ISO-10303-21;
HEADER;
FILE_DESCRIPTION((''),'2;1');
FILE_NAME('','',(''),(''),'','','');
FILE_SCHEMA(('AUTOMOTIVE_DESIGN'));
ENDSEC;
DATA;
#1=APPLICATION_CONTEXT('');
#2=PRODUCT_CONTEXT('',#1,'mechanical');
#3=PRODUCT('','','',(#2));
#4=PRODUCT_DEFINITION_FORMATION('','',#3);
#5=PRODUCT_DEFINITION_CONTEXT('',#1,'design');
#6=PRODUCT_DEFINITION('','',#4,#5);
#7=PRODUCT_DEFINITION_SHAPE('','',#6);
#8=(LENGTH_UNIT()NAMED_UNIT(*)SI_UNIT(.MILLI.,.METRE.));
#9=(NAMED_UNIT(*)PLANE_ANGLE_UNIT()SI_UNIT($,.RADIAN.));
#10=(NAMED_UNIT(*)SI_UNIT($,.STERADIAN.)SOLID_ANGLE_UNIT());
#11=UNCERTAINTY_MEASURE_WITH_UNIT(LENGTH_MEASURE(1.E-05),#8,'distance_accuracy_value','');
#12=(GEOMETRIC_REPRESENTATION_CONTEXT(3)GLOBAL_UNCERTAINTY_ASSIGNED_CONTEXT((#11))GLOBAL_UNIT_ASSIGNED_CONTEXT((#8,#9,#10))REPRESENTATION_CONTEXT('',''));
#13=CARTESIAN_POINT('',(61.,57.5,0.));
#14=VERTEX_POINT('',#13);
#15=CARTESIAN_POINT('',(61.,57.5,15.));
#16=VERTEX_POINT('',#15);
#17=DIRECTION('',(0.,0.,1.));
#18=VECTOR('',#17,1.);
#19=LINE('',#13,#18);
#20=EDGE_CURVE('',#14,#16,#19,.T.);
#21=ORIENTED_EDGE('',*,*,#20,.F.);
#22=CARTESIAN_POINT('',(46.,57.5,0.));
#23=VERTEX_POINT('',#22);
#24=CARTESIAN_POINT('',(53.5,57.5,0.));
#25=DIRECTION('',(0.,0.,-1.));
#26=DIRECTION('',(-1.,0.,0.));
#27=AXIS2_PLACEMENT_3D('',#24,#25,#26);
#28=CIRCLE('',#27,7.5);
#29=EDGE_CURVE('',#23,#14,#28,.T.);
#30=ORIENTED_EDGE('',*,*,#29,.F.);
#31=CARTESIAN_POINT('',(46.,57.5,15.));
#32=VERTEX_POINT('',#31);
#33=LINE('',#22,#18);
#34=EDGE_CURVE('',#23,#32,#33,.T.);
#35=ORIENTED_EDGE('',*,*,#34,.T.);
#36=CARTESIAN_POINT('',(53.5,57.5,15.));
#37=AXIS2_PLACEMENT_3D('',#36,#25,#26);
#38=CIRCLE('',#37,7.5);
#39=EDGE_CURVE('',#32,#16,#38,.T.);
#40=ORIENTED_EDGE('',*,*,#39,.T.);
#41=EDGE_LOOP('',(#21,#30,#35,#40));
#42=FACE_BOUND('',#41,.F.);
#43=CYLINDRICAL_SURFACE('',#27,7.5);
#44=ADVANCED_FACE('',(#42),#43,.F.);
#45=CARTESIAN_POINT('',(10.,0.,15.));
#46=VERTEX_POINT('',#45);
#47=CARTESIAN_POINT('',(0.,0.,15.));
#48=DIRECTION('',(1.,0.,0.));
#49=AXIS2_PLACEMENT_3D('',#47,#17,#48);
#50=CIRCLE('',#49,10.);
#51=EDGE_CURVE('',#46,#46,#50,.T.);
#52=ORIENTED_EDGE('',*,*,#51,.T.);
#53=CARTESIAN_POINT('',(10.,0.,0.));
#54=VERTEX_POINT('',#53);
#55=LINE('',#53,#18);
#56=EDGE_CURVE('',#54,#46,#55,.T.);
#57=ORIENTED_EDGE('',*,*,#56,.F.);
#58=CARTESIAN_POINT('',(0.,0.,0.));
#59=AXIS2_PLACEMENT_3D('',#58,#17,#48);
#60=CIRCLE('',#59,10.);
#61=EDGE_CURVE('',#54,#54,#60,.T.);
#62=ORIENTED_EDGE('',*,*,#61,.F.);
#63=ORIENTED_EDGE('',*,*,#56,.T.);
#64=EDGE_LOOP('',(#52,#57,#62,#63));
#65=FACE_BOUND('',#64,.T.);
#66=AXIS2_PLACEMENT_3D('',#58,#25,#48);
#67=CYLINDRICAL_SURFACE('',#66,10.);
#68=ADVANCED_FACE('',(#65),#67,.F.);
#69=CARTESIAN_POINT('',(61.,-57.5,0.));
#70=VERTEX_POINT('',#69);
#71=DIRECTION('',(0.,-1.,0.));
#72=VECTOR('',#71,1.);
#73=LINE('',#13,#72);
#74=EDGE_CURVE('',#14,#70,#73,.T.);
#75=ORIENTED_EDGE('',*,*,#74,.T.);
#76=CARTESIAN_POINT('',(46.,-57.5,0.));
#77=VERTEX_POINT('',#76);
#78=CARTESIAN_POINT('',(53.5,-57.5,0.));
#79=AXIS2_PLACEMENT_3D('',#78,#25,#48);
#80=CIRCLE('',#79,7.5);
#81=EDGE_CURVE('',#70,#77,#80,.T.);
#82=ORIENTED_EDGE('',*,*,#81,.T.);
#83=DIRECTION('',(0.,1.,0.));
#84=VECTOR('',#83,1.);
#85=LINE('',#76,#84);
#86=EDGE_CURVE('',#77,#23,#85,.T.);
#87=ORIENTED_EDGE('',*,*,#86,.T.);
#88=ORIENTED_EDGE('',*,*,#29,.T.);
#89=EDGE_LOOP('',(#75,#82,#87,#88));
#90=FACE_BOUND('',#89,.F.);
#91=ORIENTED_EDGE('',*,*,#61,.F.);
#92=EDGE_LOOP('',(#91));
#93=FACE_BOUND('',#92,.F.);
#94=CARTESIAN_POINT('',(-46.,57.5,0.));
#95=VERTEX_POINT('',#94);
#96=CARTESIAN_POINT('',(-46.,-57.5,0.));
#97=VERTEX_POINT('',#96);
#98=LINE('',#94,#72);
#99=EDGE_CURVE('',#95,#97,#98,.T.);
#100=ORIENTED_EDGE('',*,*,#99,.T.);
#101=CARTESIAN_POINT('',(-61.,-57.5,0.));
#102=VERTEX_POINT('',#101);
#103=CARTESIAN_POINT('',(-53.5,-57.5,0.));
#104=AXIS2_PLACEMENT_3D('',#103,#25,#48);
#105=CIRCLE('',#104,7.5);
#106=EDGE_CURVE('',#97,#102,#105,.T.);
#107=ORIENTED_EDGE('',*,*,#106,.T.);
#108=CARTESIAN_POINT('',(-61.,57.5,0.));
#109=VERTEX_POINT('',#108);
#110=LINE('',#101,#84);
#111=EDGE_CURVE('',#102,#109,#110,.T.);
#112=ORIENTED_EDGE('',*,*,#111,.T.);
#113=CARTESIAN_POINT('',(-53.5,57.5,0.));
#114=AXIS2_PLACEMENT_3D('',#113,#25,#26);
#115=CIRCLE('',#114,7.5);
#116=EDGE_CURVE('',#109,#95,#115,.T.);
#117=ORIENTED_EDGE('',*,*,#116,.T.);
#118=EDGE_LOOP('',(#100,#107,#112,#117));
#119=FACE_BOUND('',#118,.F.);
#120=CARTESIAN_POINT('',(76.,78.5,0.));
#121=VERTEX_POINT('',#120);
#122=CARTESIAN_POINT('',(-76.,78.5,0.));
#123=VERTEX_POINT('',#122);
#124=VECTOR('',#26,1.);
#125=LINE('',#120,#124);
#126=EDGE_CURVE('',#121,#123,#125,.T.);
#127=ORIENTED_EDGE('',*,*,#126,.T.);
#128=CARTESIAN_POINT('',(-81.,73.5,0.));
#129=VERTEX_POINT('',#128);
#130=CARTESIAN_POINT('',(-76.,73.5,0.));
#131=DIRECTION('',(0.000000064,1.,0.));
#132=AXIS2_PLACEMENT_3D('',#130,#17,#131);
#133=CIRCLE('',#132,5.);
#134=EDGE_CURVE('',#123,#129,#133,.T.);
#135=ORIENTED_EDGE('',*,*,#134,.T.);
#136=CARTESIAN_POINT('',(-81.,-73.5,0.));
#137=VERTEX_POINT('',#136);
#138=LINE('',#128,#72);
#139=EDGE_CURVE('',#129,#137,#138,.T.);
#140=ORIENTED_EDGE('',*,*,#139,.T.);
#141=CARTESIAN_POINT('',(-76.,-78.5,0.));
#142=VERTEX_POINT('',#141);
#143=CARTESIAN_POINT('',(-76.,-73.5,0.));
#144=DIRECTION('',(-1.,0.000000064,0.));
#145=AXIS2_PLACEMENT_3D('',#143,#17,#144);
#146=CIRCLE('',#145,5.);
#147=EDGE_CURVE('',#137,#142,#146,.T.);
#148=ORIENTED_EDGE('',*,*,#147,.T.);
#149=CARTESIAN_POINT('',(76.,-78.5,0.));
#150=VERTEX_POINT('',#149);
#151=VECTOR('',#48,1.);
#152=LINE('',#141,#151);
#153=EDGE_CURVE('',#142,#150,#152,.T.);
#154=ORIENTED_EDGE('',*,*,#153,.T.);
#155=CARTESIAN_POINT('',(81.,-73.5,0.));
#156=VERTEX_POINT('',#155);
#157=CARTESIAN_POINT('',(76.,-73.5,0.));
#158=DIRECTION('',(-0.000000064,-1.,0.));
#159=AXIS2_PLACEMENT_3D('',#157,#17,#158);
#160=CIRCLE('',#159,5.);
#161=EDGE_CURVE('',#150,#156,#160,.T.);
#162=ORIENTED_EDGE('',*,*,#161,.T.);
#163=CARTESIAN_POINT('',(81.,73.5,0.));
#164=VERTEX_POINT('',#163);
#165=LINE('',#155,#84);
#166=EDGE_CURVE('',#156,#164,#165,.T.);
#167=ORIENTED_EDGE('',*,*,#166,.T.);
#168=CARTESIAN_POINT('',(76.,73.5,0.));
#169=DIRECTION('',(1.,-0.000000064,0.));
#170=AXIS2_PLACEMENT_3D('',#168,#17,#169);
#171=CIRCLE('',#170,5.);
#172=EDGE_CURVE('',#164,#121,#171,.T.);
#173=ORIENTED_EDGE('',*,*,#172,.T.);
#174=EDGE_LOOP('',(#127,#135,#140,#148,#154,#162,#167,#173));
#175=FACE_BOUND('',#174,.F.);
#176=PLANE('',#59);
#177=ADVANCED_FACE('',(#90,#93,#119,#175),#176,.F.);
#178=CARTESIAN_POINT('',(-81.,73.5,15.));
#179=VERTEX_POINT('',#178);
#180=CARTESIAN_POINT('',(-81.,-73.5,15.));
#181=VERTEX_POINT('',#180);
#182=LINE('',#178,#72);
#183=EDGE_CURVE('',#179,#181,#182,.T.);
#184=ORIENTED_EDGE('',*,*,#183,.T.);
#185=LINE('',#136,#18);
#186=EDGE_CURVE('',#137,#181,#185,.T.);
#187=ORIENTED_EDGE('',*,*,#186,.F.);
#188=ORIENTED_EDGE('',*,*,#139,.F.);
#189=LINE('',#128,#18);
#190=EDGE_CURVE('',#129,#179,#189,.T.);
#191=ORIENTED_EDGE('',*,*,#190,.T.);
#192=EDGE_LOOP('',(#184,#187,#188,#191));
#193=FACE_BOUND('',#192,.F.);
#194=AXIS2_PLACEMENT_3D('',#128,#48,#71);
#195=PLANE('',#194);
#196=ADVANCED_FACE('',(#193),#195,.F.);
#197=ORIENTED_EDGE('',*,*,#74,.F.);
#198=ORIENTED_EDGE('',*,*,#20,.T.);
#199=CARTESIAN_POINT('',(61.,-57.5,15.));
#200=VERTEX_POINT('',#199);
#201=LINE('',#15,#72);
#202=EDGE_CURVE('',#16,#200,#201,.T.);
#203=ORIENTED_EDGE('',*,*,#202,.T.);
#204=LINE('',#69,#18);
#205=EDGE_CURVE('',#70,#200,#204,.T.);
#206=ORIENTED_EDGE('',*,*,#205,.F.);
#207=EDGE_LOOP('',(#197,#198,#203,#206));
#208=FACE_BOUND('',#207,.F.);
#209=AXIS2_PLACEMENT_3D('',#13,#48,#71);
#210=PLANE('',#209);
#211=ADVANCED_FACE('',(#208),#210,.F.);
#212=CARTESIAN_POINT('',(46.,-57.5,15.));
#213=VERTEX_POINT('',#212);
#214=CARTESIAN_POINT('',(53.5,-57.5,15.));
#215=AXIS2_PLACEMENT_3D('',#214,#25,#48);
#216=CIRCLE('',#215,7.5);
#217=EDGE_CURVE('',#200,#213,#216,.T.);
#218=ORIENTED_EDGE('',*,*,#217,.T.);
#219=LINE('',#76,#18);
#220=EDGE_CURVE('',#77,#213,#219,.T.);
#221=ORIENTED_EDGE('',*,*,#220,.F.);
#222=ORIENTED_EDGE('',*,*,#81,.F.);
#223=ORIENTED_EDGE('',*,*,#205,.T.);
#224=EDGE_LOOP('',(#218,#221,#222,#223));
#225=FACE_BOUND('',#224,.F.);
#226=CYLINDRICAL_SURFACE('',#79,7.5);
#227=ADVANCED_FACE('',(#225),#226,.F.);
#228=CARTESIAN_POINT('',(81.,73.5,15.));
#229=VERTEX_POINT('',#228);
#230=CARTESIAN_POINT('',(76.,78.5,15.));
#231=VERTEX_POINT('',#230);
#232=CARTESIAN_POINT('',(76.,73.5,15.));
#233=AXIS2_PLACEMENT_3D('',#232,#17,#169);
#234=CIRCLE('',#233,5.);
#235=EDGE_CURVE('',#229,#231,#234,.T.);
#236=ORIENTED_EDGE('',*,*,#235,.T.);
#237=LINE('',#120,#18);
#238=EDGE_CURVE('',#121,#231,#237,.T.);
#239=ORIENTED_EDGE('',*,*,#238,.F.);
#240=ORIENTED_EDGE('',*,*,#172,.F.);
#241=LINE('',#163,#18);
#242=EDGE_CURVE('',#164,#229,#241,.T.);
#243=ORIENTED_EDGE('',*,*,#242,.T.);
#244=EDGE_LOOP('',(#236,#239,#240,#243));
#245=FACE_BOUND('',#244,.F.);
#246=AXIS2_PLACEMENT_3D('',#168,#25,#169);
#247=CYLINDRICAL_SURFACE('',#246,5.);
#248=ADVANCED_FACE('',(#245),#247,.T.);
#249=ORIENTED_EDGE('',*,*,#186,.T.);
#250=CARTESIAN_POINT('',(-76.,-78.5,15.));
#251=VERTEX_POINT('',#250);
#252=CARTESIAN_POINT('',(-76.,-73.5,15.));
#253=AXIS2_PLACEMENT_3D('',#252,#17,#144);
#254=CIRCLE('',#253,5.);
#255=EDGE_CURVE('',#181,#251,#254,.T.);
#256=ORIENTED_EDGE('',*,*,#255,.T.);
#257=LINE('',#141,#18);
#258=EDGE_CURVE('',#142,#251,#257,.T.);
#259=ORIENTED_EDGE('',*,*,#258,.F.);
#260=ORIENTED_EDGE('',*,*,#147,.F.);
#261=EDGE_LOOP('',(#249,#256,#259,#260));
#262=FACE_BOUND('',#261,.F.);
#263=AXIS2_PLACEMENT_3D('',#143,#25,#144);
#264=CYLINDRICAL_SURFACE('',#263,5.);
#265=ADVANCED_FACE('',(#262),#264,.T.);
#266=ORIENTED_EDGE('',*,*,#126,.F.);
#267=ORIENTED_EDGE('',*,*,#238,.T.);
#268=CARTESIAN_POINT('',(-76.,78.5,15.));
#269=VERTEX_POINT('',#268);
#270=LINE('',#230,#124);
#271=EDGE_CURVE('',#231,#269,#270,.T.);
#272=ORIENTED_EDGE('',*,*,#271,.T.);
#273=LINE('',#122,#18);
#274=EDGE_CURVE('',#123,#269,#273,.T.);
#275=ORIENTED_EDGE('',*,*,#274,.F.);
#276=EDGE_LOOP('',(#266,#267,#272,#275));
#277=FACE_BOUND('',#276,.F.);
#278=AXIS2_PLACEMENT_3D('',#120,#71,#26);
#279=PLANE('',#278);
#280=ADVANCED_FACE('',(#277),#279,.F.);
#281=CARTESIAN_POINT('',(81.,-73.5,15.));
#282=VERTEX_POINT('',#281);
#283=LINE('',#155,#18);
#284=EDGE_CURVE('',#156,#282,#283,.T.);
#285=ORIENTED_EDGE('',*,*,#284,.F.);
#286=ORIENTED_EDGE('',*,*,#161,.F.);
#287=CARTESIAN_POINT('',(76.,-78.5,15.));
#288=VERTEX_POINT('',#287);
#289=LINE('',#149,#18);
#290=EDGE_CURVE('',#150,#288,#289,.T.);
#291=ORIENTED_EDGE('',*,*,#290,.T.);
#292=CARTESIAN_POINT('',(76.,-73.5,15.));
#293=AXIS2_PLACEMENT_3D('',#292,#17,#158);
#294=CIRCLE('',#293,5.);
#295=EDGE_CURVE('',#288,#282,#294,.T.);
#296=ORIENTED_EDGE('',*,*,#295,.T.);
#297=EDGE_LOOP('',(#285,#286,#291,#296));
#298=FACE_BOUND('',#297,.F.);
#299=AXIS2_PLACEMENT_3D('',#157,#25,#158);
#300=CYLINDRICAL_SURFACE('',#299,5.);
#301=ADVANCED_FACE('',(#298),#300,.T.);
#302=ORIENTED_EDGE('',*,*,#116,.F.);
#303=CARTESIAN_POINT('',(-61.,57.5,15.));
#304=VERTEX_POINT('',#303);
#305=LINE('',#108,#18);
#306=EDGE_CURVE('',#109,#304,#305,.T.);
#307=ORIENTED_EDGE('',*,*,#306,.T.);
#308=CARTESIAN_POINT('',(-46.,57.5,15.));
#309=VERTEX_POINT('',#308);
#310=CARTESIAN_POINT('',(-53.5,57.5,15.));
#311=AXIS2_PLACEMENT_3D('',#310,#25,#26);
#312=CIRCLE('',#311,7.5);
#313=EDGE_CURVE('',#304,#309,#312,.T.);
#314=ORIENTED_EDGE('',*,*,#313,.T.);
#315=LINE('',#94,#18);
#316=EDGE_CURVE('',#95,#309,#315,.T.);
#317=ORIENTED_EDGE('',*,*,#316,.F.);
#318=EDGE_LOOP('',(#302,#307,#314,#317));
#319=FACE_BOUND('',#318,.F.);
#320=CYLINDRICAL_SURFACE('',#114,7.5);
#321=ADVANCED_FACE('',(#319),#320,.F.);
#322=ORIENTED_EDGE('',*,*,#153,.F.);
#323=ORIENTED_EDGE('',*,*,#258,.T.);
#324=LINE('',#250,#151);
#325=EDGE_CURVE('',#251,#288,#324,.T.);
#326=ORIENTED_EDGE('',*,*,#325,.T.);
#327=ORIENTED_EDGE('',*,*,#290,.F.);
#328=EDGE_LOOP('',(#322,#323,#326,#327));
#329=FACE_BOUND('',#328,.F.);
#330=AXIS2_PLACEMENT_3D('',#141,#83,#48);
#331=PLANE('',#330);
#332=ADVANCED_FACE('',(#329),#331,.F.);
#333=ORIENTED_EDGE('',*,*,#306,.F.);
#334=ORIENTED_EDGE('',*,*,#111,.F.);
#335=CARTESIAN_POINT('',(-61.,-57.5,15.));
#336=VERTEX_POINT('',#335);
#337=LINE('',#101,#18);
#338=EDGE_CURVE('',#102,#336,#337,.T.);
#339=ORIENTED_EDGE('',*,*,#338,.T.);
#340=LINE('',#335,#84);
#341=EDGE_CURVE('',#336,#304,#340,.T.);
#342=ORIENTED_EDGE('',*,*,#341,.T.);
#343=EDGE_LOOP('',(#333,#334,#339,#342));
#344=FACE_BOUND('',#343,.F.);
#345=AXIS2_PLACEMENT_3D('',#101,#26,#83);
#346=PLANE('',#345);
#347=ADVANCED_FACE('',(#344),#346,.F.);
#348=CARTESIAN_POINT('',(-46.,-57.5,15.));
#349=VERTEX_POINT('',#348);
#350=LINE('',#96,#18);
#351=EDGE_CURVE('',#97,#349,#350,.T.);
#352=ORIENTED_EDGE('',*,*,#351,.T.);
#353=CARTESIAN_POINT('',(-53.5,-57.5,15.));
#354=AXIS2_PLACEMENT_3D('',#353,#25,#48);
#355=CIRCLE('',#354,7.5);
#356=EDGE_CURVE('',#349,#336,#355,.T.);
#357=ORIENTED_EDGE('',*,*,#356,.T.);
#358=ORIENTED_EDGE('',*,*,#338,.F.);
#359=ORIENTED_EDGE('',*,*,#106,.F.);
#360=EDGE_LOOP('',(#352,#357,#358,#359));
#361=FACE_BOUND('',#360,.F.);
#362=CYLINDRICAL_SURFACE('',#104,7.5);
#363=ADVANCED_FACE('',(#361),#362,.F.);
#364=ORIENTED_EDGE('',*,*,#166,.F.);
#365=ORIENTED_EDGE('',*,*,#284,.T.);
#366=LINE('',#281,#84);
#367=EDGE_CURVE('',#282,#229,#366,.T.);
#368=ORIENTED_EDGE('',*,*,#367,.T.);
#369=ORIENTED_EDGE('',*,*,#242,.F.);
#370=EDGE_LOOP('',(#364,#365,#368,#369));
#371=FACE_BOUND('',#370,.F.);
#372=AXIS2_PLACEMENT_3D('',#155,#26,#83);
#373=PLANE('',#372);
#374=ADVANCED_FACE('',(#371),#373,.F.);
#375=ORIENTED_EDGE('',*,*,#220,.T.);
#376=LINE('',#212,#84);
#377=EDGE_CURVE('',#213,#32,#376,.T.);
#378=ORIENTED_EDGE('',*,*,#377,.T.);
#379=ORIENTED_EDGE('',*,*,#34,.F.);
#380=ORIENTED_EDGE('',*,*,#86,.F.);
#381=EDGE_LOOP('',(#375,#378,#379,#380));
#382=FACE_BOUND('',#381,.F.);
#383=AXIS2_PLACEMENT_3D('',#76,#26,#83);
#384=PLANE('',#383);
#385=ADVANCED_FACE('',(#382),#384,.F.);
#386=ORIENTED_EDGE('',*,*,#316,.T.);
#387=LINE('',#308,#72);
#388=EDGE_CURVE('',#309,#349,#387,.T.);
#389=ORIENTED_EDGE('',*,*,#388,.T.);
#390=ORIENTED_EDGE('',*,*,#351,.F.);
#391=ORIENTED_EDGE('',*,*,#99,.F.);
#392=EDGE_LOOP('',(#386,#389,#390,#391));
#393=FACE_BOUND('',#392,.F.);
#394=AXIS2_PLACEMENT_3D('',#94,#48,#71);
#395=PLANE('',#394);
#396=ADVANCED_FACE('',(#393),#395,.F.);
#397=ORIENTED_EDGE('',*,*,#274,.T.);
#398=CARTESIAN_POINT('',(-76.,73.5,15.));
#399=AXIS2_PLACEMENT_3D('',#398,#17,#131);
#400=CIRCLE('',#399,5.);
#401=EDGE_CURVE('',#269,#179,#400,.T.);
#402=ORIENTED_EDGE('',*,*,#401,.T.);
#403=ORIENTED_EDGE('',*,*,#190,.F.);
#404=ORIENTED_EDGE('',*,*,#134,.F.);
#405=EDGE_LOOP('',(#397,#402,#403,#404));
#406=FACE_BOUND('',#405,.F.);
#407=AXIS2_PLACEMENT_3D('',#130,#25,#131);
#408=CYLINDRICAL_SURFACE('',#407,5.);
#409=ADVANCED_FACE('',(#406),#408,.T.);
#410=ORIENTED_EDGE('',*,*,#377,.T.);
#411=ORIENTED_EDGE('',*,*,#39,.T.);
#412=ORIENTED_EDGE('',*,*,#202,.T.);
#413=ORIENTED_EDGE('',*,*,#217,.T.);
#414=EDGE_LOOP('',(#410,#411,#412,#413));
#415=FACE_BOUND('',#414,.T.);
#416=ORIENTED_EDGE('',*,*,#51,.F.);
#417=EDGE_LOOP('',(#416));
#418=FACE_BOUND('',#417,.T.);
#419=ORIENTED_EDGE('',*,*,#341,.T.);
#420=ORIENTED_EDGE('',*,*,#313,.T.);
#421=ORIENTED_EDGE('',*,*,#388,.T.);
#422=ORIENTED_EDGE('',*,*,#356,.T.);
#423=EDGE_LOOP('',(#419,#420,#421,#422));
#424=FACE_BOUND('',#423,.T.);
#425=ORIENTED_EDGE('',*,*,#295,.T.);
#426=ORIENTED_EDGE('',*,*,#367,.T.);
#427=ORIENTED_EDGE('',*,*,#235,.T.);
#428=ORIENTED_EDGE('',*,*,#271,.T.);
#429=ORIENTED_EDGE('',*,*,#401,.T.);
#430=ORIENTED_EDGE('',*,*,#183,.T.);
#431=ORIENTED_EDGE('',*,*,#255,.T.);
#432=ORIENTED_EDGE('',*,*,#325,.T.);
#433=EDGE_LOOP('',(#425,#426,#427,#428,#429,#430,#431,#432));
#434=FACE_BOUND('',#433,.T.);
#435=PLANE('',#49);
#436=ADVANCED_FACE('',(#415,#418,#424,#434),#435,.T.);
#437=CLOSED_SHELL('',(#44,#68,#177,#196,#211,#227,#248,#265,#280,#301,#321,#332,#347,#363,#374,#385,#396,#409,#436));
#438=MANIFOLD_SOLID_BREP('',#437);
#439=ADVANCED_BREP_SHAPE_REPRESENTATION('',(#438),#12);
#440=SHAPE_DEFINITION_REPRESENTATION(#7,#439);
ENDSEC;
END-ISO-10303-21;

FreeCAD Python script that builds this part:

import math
import FreeCAD as App
import Part
import Sketcher

V = App.Vector
Q = App.Units.Quantity

doc = App.newDocument("Part")
body = doc.addObject("PartDesign::Body", "Body")

# Sketch on XY plane
sketch1 = doc.addObject("Sketcher::SketchObject", "Sketch")
body.addObject(sketch1)
sketch1.AttachmentSupport = (doc.XY_Plane, [""])
sketch1.MapMode = "FlatFace"
sketch1.addGeometry([
    Part.LineSegment(V(76, 78.5, 0), V(-76, 78.5, 0)),  # 0
    Part.ArcOfCircle(Part.Circle(V(-76, 73.5, 0), V(0, 0, 1), 5), math.radians(90), math.radians(180)),  # 1
    Part.LineSegment(V(-81, 73.5, 0), V(-81, -73.5, 0)),  # 2
    Part.ArcOfCircle(Part.Circle(V(-76, -73.5, 0), V(0, 0, 1), 5), math.radians(180), math.radians(270)),  # 3
    Part.LineSegment(V(-76, -78.5, 0), V(76, -78.5, 0)),  # 4
    Part.ArcOfCircle(Part.Circle(V(76, -73.5, 0), V(0, 0, 1), 5), math.radians(-90), math.radians(0)),  # 5
    Part.LineSegment(V(81, -73.5, 0), V(81, 73.5, 0)),  # 6
    Part.ArcOfCircle(Part.Circle(V(76, 73.5, 0), V(0, 0, 1), 5), math.radians(0), math.radians(90)),  # 7
    Part.LineSegment(V(-61, -57.5, 0), V(-61, 57.5, 0)),  # 8
    Part.ArcOfCircle(Part.Circle(V(-53.5, 57.5, 0), V(0, 0, 1), 7.5), math.radians(0), math.radians(180)),  # 9
    Part.LineSegment(V(-46, 57.5, 0), V(-46, -57.5, 0)),  # 10
    Part.ArcOfCircle(Part.Circle(V(-53.5, -57.5, 0), V(0, 0, 1), 7.5), math.radians(180), math.radians(360)),  # 11
    Part.Circle(V(0, 0, 0), V(0, 0, 1), 10),  # 12
    Part.LineSegment(V(46, -57.5, 0), V(46, 57.5, 0)),  # 13
    Part.ArcOfCircle(Part.Circle(V(53.5, 57.5, 0), V(0, 0, 1), 7.5), math.radians(0), math.radians(180)),  # 14
    Part.LineSegment(V(61, 57.5, 0), V(61, -57.5, 0)),  # 15
    Part.ArcOfCircle(Part.Circle(V(53.5, -57.5, 0), V(0, 0, 1), 7.5), math.radians(180), math.radians(360)),  # 16
], False)
sketch1.addConstraint([
    Sketcher.Constraint("Tangent", 0, 2, 1, 1),
    Sketcher.Constraint("Tangent", 1, 2, 2, 1),
    Sketcher.Constraint("Tangent", 2, 2, 3, 1),
    Sketcher.Constraint("Tangent", 3, 2, 4, 1),
    Sketcher.Constraint("Tangent", 4, 2, 5, 1),
    Sketcher.Constraint("Tangent", 5, 2, 6, 1),
    Sketcher.Constraint("Tangent", 6, 2, 7, 1),
    Sketcher.Constraint("Tangent", 7, 2, 0, 1),
    Sketcher.Constraint("Tangent", 8, 2, 9, 2),
    Sketcher.Constraint("Tangent", 9, 1, 10, 1),
    Sketcher.Constraint("Tangent", 10, 2, 11, 2),
    Sketcher.Constraint("Tangent", 11, 1, 8, 1),
    Sketcher.Constraint("Tangent", 13, 2, 14, 2),
    Sketcher.Constraint("Tangent", 14, 1, 15, 1),
    Sketcher.Constraint("Tangent", 15, 2, 16, 2),
    Sketcher.Constraint("Tangent", 16, 1, 13, 1),
    Sketcher.Constraint("Horizontal", 0),
    Sketcher.Constraint("Vertical", 2),
    Sketcher.Constraint("Horizontal", 4),
    Sketcher.Constraint("Vertical", 6),
    Sketcher.Constraint("Vertical", 8),
    Sketcher.Constraint("Vertical", 10),
    Sketcher.Constraint("Vertical", 13),
    Sketcher.Constraint("Vertical", 15),
    Sketcher.Constraint("Coincident", 12, 3, -1, 1),
    Sketcher.Constraint("Equal", 1, 3),
    Sketcher.Constraint("Equal", 3, 5),
    Sketcher.Constraint("Equal", 5, 7),
    Sketcher.Constraint("Equal", 11, 14),
    Sketcher.Constraint("Symmetric", 1, 3, 5, 3, -1, 1),
    Sketcher.Constraint("Symmetric", 11, 3, 14, 3, -1, 1),
    Sketcher.Constraint("Horizontal", 9, 3, 14, 3),
    Sketcher.Constraint("Horizontal", 11, 3, 16, 3),
    Sketcher.Constraint("Diameter", 12, Q("20 mm")),
    Sketcher.Constraint("Radius", 1, Q("5 mm")),
    Sketcher.Constraint("Radius", 9, Q("7.5 mm")),
    Sketcher.Constraint("DistanceX", 0, 2, 0, 1, Q("152 mm")),
    Sketcher.Constraint("DistanceY", 2, 2, 2, 1, Q("147 mm")),
    Sketcher.Constraint("DistanceY", 8, 1, 8, 2, Q("115 mm")),
    Sketcher.Constraint("DistanceX", 8, 2, -1, 1, Q("61 mm")),
])
pad1 = doc.addObject("PartDesign::Pad", "Pad")
body.addObject(pad1)
pad1.Profile = sketch1
pad1.Length = 15

doc.recompute()
